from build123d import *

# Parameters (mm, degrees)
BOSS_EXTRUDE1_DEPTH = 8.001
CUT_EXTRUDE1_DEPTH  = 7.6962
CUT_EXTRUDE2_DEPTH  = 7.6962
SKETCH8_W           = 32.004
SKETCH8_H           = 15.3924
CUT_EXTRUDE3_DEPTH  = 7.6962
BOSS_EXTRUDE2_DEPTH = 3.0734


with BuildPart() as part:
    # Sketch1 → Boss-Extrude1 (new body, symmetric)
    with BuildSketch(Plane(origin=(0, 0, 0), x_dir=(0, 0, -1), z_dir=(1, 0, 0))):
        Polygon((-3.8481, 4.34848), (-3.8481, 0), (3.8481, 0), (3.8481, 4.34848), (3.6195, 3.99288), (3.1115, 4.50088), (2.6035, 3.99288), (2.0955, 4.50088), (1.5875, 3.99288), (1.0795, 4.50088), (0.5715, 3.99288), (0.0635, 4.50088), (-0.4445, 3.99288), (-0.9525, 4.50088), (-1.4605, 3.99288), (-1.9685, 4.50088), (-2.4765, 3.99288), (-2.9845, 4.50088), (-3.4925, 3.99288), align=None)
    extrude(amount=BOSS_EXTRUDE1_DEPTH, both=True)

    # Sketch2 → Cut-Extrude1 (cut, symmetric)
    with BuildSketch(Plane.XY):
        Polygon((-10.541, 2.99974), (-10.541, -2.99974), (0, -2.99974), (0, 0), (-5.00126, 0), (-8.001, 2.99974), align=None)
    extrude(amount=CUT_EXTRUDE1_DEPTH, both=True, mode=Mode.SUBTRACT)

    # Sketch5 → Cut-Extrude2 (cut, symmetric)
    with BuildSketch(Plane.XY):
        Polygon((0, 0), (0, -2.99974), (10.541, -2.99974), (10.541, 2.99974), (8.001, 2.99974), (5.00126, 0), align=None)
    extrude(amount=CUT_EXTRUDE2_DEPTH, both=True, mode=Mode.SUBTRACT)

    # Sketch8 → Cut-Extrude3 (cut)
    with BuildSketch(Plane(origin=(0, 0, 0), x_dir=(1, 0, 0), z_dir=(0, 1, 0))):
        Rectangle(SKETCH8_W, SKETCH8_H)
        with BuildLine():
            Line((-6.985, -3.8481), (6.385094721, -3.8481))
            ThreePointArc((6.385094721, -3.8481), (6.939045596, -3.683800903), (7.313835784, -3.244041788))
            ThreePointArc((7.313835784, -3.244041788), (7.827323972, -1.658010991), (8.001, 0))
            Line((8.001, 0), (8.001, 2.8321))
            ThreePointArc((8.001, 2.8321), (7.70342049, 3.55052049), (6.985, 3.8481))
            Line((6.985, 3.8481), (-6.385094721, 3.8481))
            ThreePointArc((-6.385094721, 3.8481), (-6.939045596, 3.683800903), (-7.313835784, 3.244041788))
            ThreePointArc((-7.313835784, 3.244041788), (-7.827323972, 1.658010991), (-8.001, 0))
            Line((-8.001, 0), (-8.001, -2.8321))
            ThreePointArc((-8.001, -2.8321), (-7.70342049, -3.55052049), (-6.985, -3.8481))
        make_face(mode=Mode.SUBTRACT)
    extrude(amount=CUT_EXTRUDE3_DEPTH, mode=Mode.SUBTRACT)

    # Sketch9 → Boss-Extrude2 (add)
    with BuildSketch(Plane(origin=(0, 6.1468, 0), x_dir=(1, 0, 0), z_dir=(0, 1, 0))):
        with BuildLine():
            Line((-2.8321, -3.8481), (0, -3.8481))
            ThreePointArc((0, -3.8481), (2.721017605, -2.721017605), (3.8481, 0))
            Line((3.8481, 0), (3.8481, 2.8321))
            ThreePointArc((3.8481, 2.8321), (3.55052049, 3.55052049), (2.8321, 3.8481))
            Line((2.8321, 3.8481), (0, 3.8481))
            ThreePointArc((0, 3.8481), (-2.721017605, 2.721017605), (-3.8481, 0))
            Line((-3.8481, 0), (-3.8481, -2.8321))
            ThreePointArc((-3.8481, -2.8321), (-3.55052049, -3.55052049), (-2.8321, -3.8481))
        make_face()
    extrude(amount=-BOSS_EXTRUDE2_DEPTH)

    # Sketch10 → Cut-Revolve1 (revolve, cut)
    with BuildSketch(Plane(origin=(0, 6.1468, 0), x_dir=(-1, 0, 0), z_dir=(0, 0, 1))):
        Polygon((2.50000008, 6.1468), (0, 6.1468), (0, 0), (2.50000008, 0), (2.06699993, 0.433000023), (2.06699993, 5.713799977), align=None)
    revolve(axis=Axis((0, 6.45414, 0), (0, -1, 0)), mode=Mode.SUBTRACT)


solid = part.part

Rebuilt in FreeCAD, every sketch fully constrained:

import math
import FreeCAD as App
import Part
import Sketcher
Q = App.Units.Quantity


def add_polygon(sketch, points):
    """Adds a closed chain of lines whose ends are joined by coincident constraints."""
    first, n = sketch.GeometryCount, len(points)
    for a, b in zip(points, points[1:] + points[:1]):
        sketch.addGeometry(Part.LineSegment(App.Vector(*a, 0), App.Vector(*b, 0)), False)
    for i in range(n):
        sketch.addConstraint(Sketcher.Constraint("Coincident", first + i, 2, first + (i + 1) % n, 1))

doc = App.newDocument("Part")
body = doc.addObject("PartDesign::Body", "Body")

# Sketch on YZ plane
sketch1 = body.newObject("Sketcher::SketchObject", "Sketch")
sketch1.AttachmentSupport = (doc.getObject("YZ_Plane"), [""])
sketch1.MapMode = "FlatFace"
add_polygon(sketch1, [(4.35, 3.85), (0, 3.85), (0, -3.85), (4.35, -3.85), (3.99, -3.62), (4.5, -3.11), (3.99, -2.6), (4.5, -2.1), (3.99, -1.59), (4.5, -1.08), (3.99, -0.57), (4.5, -0.06), (3.99, 0.44), (4.5, 0.95), (3.99, 1.46), (4.5, 1.97), (3.99, 2.48), (4.5, 2.98), (3.99, 3.49)])  # lines 0-18
sketch1.addConstraint([
    Sketcher.Constraint("Horizontal", 0),
    Sketcher.Constraint("Vertical", 1),
    Sketcher.Constraint("Horizontal", 2),
    Sketcher.Constraint("Symmetric", 0, 2, 1, 2, -1, 1),
    Sketcher.Constraint("Perpendicular", 4, 5),
    Sketcher.Constraint("Perpendicular", 5, 6),
    Sketcher.Constraint("Perpendicular", 6, 7),
    Sketcher.Constraint("Perpendicular", 7, 8),
    Sketcher.Constraint("Perpendicular", 8, 9),
    Sketcher.Constraint("Perpendicular", 9, 10),
    Sketcher.Constraint("Perpendicular", 10, 11),
    Sketcher.Constraint("Perpendicular", 11, 12),
    Sketcher.Constraint("Perpendicular", 12, 13),
    Sketcher.Constraint("Perpendicular", 13, 14),
    Sketcher.Constraint("Perpendicular", 14, 15),
    Sketcher.Constraint("Perpendicular", 15, 16),
    Sketcher.Constraint("Perpendicular", 16, 17),
    Sketcher.Constraint("Perpendicular", 17, 18),
    Sketcher.Constraint("Vertical", 3, 2, 5, 2),
    Sketcher.Constraint("Vertical", 4, 2, 6, 2),
    Sketcher.Constraint("Vertical", 5, 2, 7, 2),
    Sketcher.Constraint("Vertical", 6, 2, 8, 2),
    Sketcher.Constraint("Vertical", 7, 2, 9, 2),
    Sketcher.Constraint("Vertical", 8, 2, 10, 2),
    Sketcher.Constraint("Vertical", 9, 2, 11, 2),
    Sketcher.Constraint("Vertical", 10, 2, 12, 2),
    Sketcher.Constraint("Vertical", 11, 2, 13, 2),
    Sketcher.Constraint("Vertical", 12, 2, 14, 2),
    Sketcher.Constraint("Vertical", 13, 2, 15, 2),
    Sketcher.Constraint("Vertical", 14, 2, 16, 2),
    Sketcher.Constraint("Vertical", 15, 2, 17, 2),
    Sketcher.Constraint("Vertical", 2, 2, 18, 2),
    Sketcher.Constraint("Equal", 4, 5),
    Sketcher.Constraint("DistanceY", 3, 2, 8, 2, Q("0.1 in")),
    Sketcher.Constraint("DistanceY", 1, 2, 1, 1, Q("0.303 in")),
    Sketcher.Constraint("DistanceX", 0, 2, 0, 1, Q("0.1712 in")),
    Sketcher.Constraint("DistanceY", 7, 2, -1, 1, Q("0.0625 in")),
])
pad1 = body.newObject("PartDesign::Pad", "Pad")
pad1.Profile = sketch1
pad1.Length = Q("0.63 in")
pad1.Midplane = True

# Sketch on XY plane
sketch2 = body.newObject("Sketcher::SketchObject", "Sketch001")
sketch2.AttachmentSupport = (doc.getObject("XY_Plane"), [""])
sketch2.MapMode = "FlatFace"
add_polygon(sketch2, [(-10.5, 3), (-10.5, -3), (0, -3), (0, 0), (-5, 0), (-8, 3)])  # lines 0-5
sketch2.addConstraint([
    Sketcher.Constraint("Vertical", 0),
    Sketcher.Constraint("Horizontal", 1),
    Sketcher.Constraint("Vertical", 2),
    Sketcher.Constraint("Horizontal", 3),
    Sketcher.Constraint("Horizontal", 5),
    Sketcher.Constraint("Coincident", 2, 2, -1, 1),
    Sketcher.Constraint("DistanceX", 5, 2, 5, 1, Q("0.1 in")),
    Sketcher.Constraint("Angle", 4, Q("135 deg")),
    Sketcher.Constraint("DistanceX", 1, 1, 1, 2, Q("0.415 in")),
    Sketcher.Constraint("DistanceX", 3, 2, 3, 1, Q("0.1969 in")),
    Sketcher.Constraint("DistanceY", 0, 2, 0, 1, Q("0.2362 in")),
])
pocket1 = body.newObject("PartDesign::Pocket", "Pocket")
pocket1.Profile = sketch2
pocket1.Length = Q("0.606 in")
pocket1.Midplane = True

# Sketch on XY plane
sketch3 = body.newObject("Sketcher::SketchObject", "Sketch002")
sketch3.AttachmentSupport = (doc.getObject("XY_Plane"), [""])
sketch3.MapMode = "FlatFace"
add_polygon(sketch3, [(0, 0), (0, -3), (10.5, -3), (10.5, 3), (8, 3), (5, 0)])  # lines 0-5
sketch3.addConstraint([
    Sketcher.Constraint("Vertical", 0),
    Sketcher.Constraint("Horizontal", 1),
    Sketcher.Constraint("Vertical", 2),
    Sketcher.Constraint("Horizontal", 3),
    Sketcher.Constraint("Horizontal", 5),
    Sketcher.Constraint("Coincident", 5, 2, -1, 1),
    Sketcher.Constraint("DistanceX", 3, 2, 3, 1, Q("0.1 in")),
    Sketcher.Constraint("Angle", 4, Q("-135 deg")),
    Sketcher.Constraint("DistanceX", 1, 1, 1, 2, Q("0.415 in")),
    Sketcher.Constraint("DistanceX", 5, 2, 5, 1, Q("0.1969 in")),
    Sketcher.Constraint("DistanceY", 0, 2, 0, 1, Q("0.1181 in")),
])
pocket2 = body.newObject("PartDesign::Pocket", "Pocket001")
pocket2.Profile = sketch3
pocket2.Length = Q("0.606 in")
pocket2.Midplane = True

# Sketch on XZ plane
sketch4 = body.newObject("Sketcher::SketchObject", "Sketch003")
sketch4.AttachmentSupport = (doc.getObject("XZ_Plane"), [""])
sketch4.MapMode = "FlatFace"
add_polygon(sketch4, [(-16, -7.7), (-16, 7.7), (16, 7.7), (16, -7.7)])  # lines 0-3
sketch4.addGeometry(Part.LineSegment(App.Vector(6.4, 3.8, 0), App.Vector(-7, 3.8, 0)), False)  # 4
sketch4.addGeometry(Part.ArcOfCircle(Part.Circle(App.Vector(-7, 2.8, 0), App.Vector(0, 0, 1), 1), math.radians(90), math.radians(180)), False)  # 5
sketch4.addGeometry(Part.LineSegment(App.Vector(-8, 2.8, 0), App.Vector(-8, 0, 0)), False)  # 6
sketch4.addGeometry(Part.ArcOfCircle(Part.Circle(App.Vector(0, 0, 0), App.Vector(0, 0, 1), 8), math.radians(180), math.radians(204)), False)  # 7
sketch4.addGeometry(Part.ArcOfCircle(Part.Circle(App.Vector(-6.4, -2.8, 0), App.Vector(0, 0, 1), 1), math.radians(-156), math.radians(-90)), False)  # 8
sketch4.addGeometry(Part.LineSegment(App.Vector(-6.4, -3.8, 0), App.Vector(7, -3.8, 0)), False)  # 9
sketch4.addGeometry(Part.ArcOfCircle(Part.Circle(App.Vector(7, -2.8, 0), App.Vector(0, 0, 1), 1), math.radians(-90), math.radians(0)), False)  # 10
sketch4.addGeometry(Part.LineSegment(App.Vector(8, -2.8, 0), App.Vector(8, 0, 0)), False)  # 11
sketch4.addGeometry(Part.ArcOfCircle(Part.Circle(App.Vector(0, 0, 0), App.Vector(0, 0, 1), 8), math.radians(0), math.radians(24)), False)  # 12
sketch4.addGeometry(Part.ArcOfCircle(Part.Circle(App.Vector(6.4, 2.8, 0), App.Vector(0, 0, 1), 1), math.radians(24), math.radians(90)), False)  # 13
sketch4.addConstraint([
    Sketcher.Constraint("Tangent", 4, 2, 5, 1),
    Sketcher.Constraint("Tangent", 5, 2, 6, 1),
    Sketcher.Constraint("Tangent", 6, 2, 7, 1),
    Sketcher.Constraint("Tangent", 7, 2, 8, 1),
    Sketcher.Constraint("Tangent", 8, 2, 9, 1),
    Sketcher.Constraint("Tangent", 9, 2, 10, 1),
    Sketcher.Constraint("Tangent", 10, 2, 11, 1),
    Sketcher.Constraint("Tangent", 11, 2, 12, 1),
    Sketcher.Constraint("Tangent", 12, 2, 13, 1),
    Sketcher.Constraint("Tangent", 13, 2, 4, 1),
    Sketcher.Constraint("Vertical", 0),
    Sketcher.Constraint("Horizontal", 1),
    Sketcher.Constraint("Vertical", 2),
    Sketcher.Constraint("Horizontal", 3),
    Sketcher.Constraint("Horizontal", 4),
    Sketcher.Constraint("Vertical", 6),
    Sketcher.Constraint("Horizontal", 9),
    Sketcher.Constraint("Vertical", 11),
    Sketcher.Constraint("Coincident", 7, 3, -1, 1),
    Sketcher.Constraint("Coincident", 12, 3, -1, 1),
    Sketcher.Constraint("Equal", 5, 8),
    Sketcher.Constraint("Equal", 8, 10),
    Sketcher.Constraint("Equal", 7, 12),
    Sketcher.Constraint("Equal", 10, 13),
    Sketcher.Constraint("Symmetric", 0, 2, 2, 2, -1, 1),
    Sketcher.Constraint("Equal", 4, 9),
    Sketcher.Constraint("Radius", 5, Q("0.04 in")),
    Sketcher.Constraint("Radius", 7, Q("0.315 in")),
    Sketcher.Constraint("DistanceX", 1, 1, 1, 2, Q("1.26 in")),
    Sketcher.Constraint("DistanceY", 0, 1, 0, 2, Q("0.606 in")),
    Sketcher.Constraint("DistanceY", 6, 2, 6, 1, Q("0.1115 in")),
])
pocket3 = body.newObject("PartDesign::Pocket", "Pocket002")
pocket3.Profile = sketch4
pocket3.Length = Q("0.303 in")

# Sketch on XZ plane
sketch5 = body.newObject("Sketcher::SketchObject", "Sketch004")
sketch5.AttachmentSupport = (doc.getObject("XZ_Plane"), [""])
sketch5.MapMode = "FlatFace"
sketch5.AttachmentOffset = App.Placement(App.Vector(0, 0, -0.242 * 25.4), App.Rotation())
sketch5.addGeometry([
    Part.LineSegment(App.Vector(-2.8, 3.8, 0), App.Vector(0, 3.8, 0)),  # 0
    Part.ArcOfCircle(Part.Circle(App.Vector(0, 0, 0), App.Vector(0, 0, 1), 3.8), math.radians(0), math.radians(90)),  # 1
    Part.LineSegment(App.Vector(3.8, 0, 0), App.Vector(3.8, -2.8, 0)),  # 2
    Part.ArcOfCircle(Part.Circle(App.Vector(2.8, -2.8, 0), App.Vector(0, 0, 1), 1), math.radians(-90), math.radians(0)),  # 3
    Part.LineSegment(App.Vector(2.8, -3.8, 0), App.Vector(0, -3.8, 0)),  # 4
    Part.ArcOfCircle(Part.Circle(App.Vector(0, 0, 0), App.Vector(0, 0, 1), 3.8), math.radians(180), math.radians(270)),  # 5
    Part.LineSegment(App.Vector(-3.8, 0, 0), App.Vector(-3.8, 2.8, 0)),  # 6
    Part.ArcOfCircle(Part.Circle(App.Vector(-2.8, 2.8, 0), App.Vector(0, 0, 1), 1), math.radians(90), math.radians(180)),  # 7
], False)
sketch5.addConstraint([
    Sketcher.Constraint("Tangent", 0, 2, 1, 2),
    Sketcher.Constraint("Tangent", 1, 1, 2, 1),
    Sketcher.Constraint("Tangent", 2, 2, 3, 2),
    Sketcher.Constraint("Tangent", 3, 1, 4, 1),
    Sketcher.Constraint("Tangent", 4, 2, 5, 2),
    Sketcher.Constraint("Tangent", 5, 1, 6, 1),
    Sketcher.Constraint("Tangent", 6, 2, 7, 2),
    Sketcher.Constraint("Tangent", 7, 1, 0, 1),
    Sketcher.Constraint("Horizontal", 0),
    Sketcher.Constraint("Vertical", 2),
    Sketcher.Constraint("Horizontal", 4),
    Sketcher.Constraint("Vertical", 6),
    Sketcher.Constraint("Coincident", 1, 3, -1, 1),
    Sketcher.Constraint("Coincident", 5, 3, -1, 1),
    Sketcher.Constraint("Equal", 1, 5),
    Sketcher.Constraint("Equal", 3, 7),
    Sketcher.Constraint("Radius", 3, Q("0.04 in")),
    Sketcher.Constraint("Radius", 1, Q("0.1515 in")),
])
pad2 = body.newObject("PartDesign::Pad", "Pad001")
pad2.Profile = sketch5
pad2.Length = Q("0.121 in")

# Sketch on XY plane
sketch6 = body.newObject("Sketcher::SketchObject", "Sketch005")
sketch6.AttachmentSupport = (doc.getObject("XY_Plane"), [""])
sketch6.MapMode = "FlatFace"
add_polygon(sketch6, [(-2.5, 0), (0, 0), (0, 6.1), (-2.5, 6.1), (-2.1, 5.7), (-2.1, 0.4)])  # lines 0-5
sketch6.addConstraint([
    Sketcher.Constraint("Horizontal", 0),
    Sketcher.Constraint("Vertical", 1),
    Sketcher.Constraint("Horizontal", 2),
    Sketcher.Constraint("Vertical", 4),
    Sketcher.Constraint("Coincident", 0, 2, -1, 1),
    Sketcher.Constraint("Perpendicular", 3, 5),
    Sketcher.Constraint("Vertical", 2, 2, 5, 2),
    Sketcher.Constraint("Equal", 3, 5),
    Sketcher.Constraint("DistanceY", 1, 1, 1, 2, Q("0.242 in")),
    Sketcher.Constraint("DistanceX", 0, 1, 0, 2, Q("2.5 mm")),
    Sketcher.Constraint("DistanceY", 4, 2, 4, 1, Q("5.2808 mm")),
])
groove = body.newObject("PartDesign::Groove", "Groove")
groove.Profile = sketch6
groove.ReferenceAxis = (sketch6, ["V_Axis"])
groove.Angle = 360

doc.recompute()
